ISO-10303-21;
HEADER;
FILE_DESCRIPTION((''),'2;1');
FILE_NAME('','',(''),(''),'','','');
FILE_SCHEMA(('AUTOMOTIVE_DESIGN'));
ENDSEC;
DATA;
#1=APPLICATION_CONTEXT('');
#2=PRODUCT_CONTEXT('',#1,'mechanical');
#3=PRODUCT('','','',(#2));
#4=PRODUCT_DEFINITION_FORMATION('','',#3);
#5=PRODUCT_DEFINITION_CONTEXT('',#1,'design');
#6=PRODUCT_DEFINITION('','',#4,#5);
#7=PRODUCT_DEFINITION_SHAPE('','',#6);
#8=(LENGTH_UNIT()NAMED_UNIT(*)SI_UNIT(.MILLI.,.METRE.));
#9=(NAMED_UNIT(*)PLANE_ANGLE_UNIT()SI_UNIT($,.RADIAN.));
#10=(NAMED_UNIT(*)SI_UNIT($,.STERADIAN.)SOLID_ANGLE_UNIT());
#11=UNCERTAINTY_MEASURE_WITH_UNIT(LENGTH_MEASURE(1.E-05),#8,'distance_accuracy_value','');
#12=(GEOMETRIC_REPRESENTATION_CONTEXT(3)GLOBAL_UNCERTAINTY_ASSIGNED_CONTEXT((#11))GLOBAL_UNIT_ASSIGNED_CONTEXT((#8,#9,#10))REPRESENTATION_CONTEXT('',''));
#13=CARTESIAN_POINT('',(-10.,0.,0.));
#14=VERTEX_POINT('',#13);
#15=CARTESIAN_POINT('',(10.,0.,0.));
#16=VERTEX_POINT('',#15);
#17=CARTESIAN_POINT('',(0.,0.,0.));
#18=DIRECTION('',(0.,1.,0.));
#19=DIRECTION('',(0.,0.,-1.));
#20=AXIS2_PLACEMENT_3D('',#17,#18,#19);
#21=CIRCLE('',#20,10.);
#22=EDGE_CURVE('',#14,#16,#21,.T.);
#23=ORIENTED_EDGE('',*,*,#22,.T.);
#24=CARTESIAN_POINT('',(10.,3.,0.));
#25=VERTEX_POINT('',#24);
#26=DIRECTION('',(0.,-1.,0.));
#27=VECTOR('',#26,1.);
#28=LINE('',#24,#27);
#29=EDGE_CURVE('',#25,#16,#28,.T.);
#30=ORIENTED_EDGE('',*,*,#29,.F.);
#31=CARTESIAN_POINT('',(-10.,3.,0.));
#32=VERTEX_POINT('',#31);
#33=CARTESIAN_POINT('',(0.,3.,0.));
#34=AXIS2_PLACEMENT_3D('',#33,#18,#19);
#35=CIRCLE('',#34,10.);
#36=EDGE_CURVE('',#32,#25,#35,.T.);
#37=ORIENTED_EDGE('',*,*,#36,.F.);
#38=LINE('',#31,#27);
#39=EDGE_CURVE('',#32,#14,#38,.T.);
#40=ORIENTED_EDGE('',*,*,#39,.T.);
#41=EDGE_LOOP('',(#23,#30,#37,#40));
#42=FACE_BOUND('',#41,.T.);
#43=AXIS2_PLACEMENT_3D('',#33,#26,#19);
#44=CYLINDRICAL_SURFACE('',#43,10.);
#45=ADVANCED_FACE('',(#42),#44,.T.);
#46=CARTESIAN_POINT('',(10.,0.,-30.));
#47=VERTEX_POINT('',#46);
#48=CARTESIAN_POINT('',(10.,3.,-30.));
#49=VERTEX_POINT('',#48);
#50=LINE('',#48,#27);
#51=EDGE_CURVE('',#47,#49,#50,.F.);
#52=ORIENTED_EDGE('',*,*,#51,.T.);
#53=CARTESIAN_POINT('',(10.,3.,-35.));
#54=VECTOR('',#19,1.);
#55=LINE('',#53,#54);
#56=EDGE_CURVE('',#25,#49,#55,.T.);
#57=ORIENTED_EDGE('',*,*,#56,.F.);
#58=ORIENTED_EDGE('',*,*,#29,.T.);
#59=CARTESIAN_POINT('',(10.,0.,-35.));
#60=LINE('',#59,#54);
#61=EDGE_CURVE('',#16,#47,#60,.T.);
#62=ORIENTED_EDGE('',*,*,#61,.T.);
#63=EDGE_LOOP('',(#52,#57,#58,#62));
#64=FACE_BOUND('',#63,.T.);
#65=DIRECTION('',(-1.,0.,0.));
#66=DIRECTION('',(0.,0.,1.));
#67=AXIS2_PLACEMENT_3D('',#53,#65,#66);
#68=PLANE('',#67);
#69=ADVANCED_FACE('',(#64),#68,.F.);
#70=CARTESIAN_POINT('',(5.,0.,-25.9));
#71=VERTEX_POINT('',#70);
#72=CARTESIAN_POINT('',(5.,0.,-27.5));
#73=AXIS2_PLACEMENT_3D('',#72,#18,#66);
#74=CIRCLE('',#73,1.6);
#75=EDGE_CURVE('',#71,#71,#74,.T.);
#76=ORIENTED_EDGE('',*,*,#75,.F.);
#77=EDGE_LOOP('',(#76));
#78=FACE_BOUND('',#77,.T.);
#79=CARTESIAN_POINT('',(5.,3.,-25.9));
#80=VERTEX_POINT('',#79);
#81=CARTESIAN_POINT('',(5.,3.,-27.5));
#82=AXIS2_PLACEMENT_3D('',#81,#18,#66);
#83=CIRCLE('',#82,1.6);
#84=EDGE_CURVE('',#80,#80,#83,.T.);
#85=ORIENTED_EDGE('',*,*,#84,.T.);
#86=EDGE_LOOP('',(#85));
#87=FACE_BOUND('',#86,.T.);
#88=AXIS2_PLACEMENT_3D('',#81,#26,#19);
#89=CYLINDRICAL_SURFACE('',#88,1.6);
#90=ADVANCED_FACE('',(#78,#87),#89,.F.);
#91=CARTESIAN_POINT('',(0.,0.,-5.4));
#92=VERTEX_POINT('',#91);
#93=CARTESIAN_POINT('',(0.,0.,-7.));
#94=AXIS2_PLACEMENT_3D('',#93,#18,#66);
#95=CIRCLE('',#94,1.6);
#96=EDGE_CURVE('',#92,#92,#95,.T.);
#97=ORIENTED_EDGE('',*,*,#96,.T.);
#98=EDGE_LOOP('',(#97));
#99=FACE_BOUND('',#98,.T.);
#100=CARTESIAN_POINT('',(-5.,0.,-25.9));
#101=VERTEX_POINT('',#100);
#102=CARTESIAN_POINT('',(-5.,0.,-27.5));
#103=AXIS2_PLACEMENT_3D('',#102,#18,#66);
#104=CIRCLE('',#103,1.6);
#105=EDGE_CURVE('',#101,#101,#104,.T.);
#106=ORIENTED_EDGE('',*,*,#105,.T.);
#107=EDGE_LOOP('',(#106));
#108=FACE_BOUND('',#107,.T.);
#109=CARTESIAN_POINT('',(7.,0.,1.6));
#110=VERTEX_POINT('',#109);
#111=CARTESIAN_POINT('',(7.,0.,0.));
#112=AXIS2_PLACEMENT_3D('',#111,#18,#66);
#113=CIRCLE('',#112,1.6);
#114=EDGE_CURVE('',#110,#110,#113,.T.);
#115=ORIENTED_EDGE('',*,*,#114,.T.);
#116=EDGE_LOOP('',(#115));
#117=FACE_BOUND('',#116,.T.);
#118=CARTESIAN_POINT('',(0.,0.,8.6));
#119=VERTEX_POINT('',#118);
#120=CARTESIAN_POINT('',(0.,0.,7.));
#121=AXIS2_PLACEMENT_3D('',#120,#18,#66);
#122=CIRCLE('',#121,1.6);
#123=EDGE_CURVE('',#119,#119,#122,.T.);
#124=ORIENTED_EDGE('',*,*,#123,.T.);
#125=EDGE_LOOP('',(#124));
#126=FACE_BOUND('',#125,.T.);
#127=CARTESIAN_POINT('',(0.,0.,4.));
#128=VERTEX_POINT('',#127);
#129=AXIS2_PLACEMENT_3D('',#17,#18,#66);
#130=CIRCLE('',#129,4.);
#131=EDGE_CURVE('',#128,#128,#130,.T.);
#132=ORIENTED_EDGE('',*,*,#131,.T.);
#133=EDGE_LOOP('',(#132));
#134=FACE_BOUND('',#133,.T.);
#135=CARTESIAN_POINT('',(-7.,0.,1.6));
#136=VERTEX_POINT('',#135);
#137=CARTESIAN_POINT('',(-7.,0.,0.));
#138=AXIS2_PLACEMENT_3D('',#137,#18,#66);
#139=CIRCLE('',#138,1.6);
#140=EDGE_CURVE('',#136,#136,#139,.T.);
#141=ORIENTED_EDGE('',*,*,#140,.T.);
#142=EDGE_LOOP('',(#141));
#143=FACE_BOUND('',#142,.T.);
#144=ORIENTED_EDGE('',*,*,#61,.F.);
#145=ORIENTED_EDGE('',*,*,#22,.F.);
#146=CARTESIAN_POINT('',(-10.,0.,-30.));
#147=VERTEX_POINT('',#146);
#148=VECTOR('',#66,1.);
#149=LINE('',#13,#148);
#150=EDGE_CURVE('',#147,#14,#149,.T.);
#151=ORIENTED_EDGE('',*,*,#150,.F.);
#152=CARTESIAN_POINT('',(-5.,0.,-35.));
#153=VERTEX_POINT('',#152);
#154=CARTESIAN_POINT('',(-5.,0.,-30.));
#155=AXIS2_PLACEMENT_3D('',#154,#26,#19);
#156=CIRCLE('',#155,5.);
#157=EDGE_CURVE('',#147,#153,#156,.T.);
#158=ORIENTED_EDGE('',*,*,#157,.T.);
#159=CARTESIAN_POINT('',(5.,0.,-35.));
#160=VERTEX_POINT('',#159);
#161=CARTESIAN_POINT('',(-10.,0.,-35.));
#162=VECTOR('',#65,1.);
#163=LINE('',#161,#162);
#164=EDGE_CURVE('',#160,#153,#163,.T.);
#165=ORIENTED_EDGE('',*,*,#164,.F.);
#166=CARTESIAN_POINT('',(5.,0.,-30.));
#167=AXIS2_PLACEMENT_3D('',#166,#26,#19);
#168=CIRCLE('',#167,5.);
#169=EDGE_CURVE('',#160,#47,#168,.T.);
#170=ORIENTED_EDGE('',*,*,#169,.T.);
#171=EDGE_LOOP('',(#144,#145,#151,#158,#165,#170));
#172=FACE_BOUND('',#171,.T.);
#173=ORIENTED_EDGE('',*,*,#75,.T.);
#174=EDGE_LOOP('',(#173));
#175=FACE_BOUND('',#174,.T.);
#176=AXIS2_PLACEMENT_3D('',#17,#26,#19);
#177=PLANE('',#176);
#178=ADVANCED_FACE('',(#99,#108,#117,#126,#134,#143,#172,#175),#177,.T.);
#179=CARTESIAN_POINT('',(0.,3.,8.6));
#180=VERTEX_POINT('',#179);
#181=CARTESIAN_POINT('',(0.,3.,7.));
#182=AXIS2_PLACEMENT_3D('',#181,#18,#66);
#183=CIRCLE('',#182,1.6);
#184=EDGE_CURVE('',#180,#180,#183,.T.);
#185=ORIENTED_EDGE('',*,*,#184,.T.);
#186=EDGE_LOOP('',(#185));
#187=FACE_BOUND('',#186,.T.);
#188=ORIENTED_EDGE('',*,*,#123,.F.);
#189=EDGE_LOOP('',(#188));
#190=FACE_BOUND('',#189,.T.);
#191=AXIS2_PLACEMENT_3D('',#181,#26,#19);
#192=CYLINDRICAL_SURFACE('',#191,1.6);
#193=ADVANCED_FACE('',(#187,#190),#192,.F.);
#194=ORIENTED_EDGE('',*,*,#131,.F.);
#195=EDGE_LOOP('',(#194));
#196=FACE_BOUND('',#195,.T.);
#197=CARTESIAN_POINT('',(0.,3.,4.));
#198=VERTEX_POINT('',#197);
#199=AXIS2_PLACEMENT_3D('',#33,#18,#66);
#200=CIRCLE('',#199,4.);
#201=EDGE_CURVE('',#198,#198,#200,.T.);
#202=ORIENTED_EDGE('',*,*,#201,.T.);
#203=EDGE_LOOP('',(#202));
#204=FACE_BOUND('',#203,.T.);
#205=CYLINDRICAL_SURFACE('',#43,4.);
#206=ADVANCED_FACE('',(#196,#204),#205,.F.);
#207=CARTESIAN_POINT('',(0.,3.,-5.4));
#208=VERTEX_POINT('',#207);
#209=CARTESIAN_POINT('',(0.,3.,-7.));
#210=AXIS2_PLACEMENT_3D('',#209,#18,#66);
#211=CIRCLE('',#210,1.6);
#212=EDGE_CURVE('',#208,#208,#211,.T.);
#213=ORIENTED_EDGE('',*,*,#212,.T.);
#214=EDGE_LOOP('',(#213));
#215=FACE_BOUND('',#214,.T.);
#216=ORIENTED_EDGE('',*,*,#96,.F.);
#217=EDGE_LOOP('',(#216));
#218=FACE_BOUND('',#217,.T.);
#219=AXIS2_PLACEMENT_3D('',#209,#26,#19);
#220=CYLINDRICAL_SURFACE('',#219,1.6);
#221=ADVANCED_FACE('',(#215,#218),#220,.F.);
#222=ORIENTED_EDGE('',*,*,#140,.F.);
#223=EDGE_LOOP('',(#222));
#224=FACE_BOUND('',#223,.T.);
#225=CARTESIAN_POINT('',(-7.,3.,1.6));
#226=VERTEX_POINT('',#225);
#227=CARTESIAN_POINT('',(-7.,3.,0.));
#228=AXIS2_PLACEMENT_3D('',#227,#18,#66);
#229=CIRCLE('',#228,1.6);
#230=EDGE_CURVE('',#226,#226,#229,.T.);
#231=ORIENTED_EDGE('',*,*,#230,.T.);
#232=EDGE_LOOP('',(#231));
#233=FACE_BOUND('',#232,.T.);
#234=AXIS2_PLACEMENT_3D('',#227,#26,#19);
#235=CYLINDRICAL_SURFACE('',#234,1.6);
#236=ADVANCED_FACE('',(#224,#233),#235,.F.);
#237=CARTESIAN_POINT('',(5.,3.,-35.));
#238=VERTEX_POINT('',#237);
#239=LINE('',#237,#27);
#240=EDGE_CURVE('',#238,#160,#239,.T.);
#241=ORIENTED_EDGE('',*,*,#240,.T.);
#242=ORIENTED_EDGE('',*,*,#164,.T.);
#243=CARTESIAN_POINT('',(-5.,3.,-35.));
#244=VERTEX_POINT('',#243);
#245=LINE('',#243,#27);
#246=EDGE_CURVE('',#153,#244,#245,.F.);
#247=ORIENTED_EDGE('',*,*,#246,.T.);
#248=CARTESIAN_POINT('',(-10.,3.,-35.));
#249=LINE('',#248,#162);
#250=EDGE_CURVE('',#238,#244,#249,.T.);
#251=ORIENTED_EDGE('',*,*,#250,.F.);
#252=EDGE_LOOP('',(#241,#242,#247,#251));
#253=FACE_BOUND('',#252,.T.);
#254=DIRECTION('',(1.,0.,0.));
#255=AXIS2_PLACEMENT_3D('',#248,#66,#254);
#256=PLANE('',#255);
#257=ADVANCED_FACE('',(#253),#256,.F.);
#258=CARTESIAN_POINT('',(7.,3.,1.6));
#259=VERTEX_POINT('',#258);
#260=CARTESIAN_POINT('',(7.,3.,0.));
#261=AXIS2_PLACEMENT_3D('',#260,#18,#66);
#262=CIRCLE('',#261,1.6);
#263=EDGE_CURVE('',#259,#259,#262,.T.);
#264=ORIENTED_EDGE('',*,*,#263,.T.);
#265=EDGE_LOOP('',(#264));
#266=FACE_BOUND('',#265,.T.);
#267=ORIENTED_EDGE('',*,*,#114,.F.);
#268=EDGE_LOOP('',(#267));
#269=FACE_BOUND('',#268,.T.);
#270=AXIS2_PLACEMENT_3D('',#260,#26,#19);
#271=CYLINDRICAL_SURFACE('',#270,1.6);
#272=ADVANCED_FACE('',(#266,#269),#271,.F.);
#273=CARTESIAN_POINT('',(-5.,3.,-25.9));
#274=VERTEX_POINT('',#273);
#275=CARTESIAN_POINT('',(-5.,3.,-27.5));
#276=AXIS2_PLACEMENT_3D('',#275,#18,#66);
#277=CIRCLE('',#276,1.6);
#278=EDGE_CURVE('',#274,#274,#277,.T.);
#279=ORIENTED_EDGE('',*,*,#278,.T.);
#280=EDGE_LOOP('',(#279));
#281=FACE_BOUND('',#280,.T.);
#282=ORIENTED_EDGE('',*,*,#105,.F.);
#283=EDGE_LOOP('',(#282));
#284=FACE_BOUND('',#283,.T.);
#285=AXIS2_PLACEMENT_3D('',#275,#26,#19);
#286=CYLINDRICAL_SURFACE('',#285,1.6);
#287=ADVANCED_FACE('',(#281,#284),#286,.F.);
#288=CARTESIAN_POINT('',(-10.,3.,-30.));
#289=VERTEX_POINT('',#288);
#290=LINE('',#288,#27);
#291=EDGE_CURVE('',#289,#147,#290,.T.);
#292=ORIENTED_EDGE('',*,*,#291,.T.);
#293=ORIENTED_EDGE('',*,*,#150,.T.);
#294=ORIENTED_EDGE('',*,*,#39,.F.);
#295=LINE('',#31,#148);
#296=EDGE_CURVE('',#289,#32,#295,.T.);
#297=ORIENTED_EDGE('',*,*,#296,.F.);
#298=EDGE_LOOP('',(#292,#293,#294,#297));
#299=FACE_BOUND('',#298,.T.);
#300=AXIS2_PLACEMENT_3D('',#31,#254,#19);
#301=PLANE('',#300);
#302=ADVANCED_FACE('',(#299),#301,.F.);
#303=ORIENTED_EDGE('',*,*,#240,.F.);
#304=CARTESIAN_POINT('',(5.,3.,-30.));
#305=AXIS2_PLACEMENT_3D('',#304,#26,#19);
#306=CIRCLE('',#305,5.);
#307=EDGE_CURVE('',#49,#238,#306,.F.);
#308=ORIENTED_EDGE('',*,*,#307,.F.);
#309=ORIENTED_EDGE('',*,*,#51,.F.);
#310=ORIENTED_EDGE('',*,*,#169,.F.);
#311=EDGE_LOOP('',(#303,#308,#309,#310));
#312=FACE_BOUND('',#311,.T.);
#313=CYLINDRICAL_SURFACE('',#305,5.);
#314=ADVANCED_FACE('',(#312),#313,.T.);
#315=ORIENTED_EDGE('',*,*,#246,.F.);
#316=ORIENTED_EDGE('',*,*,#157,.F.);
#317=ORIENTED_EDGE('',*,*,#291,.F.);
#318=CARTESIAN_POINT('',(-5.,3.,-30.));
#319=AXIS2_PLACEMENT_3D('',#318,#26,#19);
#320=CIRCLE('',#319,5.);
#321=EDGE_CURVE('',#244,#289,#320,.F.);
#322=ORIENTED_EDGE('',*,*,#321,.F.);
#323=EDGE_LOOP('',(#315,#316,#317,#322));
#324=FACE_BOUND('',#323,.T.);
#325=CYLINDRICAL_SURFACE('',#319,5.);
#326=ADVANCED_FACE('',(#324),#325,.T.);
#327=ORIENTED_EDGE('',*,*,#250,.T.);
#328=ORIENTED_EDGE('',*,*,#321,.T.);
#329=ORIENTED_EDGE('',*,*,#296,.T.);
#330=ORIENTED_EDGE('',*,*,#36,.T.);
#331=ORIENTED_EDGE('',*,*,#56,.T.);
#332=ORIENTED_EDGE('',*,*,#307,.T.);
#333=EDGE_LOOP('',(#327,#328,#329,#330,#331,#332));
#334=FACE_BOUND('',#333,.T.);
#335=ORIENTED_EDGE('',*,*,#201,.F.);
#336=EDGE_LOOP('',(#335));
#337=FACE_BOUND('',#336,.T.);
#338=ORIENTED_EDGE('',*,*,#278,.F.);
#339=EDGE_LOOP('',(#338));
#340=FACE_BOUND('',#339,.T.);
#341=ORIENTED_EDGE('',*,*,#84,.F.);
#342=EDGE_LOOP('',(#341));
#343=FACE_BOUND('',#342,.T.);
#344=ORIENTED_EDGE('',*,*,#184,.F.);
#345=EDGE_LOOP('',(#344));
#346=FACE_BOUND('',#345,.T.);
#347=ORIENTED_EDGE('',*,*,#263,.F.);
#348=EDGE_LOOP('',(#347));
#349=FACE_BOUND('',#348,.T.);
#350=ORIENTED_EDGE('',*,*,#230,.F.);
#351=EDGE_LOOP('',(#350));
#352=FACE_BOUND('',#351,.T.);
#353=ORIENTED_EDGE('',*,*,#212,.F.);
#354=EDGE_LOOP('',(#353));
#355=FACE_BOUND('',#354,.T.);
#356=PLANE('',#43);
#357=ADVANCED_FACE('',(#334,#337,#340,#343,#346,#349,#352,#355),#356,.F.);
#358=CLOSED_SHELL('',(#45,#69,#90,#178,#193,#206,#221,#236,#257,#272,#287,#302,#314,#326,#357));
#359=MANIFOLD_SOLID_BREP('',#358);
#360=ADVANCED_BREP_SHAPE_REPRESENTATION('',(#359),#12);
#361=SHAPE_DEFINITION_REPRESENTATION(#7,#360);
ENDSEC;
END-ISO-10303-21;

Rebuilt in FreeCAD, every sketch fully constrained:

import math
import FreeCAD as App
import Part
import Sketcher
Q = App.Units.Quantity


def edges_at(feature, points):
    """Names of the edges that pass closest to the given points."""
    edges = feature.Shape.Edges
    near = lambda p: min(range(len(edges)), key=lambda i: edges[i].distToShape(Part.Vertex(*p))[0])
    return sorted({f"Edge{near(p) + 1}" for p in points})

doc = App.newDocument("Part")
body = doc.addObject("PartDesign::Body", "Body")

sketch1 = doc.addObject("Sketcher::SketchObject", "Sketch")
body.addObject(sketch1)
sketch1.AttachmentSupport = (doc.XZ_Plane, [""])
sketch1.MapMode = "FlatFace"
sketch1.addGeometry(Part.LineSegment(App.Vector(-10, -35, 0), App.Vector(-10, 0, 0)), False)
sketch1.addGeometry(Part.ArcOfCircle(Part.Circle(App.Vector(0, 0, 0), App.Vector(0, 0, 1), 10), math.radians(0), math.radians(180)), False)
sketch1.addGeometry(Part.LineSegment(App.Vector(10, 0, 0), App.Vector(10, -35, 0)), False)
sketch1.addGeometry(Part.LineSegment(App.Vector(10, -35, 0), App.Vector(-10, -35, 0)), False)
sketch1.addGeometry(Part.Circle(App.Vector(7, 0, 0), App.Vector(0, 0, 1), 1.6), False)
sketch1.addGeometry(Part.Circle(App.Vector(0, 7, 0), App.Vector(0, 0, 1), 1.6), False)
sketch1.addGeometry(Part.Circle(App.Vector(0, 0, 0), App.Vector(0, 0, 1), 4), False)
sketch1.addGeometry(Part.Circle(App.Vector(-7, 0, 0), App.Vector(0, 0, 1), 1.6), False)
sketch1.addGeometry(Part.Circle(App.Vector(0, -7, 0), App.Vector(0, 0, 1), 1.6), False)
sketch1.addGeometry(Part.Circle(App.Vector(5, -27.5, 0), App.Vector(0, 0, 1), 1.6), False)
sketch1.addGeometry(Part.Circle(App.Vector(-5, -27.5, 0), App.Vector(0, 0, 1), 1.6), False)
sketch1.addConstraint(Sketcher.Constraint("Tangent", 0, 2, 1, 2))
sketch1.addConstraint(Sketcher.Constraint("Tangent", 1, 1, 2, 1))
sketch1.addConstraint(Sketcher.Constraint("Coincident", 2, 2, 3, 1))
sketch1.addConstraint(Sketcher.Constraint("Coincident", 3, 2, 0, 1))
sketch1.addConstraint(Sketcher.Constraint("Vertical", 0))
sketch1.addConstraint(Sketcher.Constraint("Vertical", 2))
sketch1.addConstraint(Sketcher.Constraint("Horizontal", 3))
sketch1.addConstraint(Sketcher.Constraint("Coincident", 1, 3, -1, 1))
sketch1.addConstraint(Sketcher.Constraint("Coincident", 6, 3, -1, 1))
sketch1.addConstraint(Sketcher.Constraint("Equal", 4, 5))
sketch1.addConstraint(Sketcher.Constraint("Equal", 5, 7))
sketch1.addConstraint(Sketcher.Constraint("Equal", 7, 8))
sketch1.addConstraint(Sketcher.Constraint("Equal", 8, 9))
sketch1.addConstraint(Sketcher.Constraint("Equal", 9, 10))
sketch1.addConstraint(Sketcher.Constraint("Symmetric", 4, 3, 7, 3, -1, 1))
sketch1.addConstraint(Sketcher.Constraint("Symmetric", 5, 3, 8, 3, -1, 1))
sketch1.addConstraint(Sketcher.Constraint("Symmetric", 9, 3, 10, 3, -2))
sketch1.addConstraint(Sketcher.Constraint("PointOnObject", 4, 3, -1))
sketch1.addConstraint(Sketcher.Constraint("PointOnObject", 5, 3, -2))
sketch1.addConstraint(Sketcher.Constraint("Diameter", 6, Q("8 mm")))
sketch1.addConstraint(Sketcher.Constraint("Radius", 1, Q("10 mm")))
sketch1.addConstraint(Sketcher.Constraint("Diameter", 4, Q("3.2 mm")))
sketch1.addConstraint(Sketcher.Constraint("DistanceY", 0, 1, 0, 2, Q("35 mm")))
sketch1.addConstraint(Sketcher.Constraint("DistanceX", -1, 1, 4, 3, Q("7 mm")))
sketch1.addConstraint(Sketcher.Constraint("DistanceY", -1, 1, 5, 3, Q("7 mm")))
sketch1.addConstraint(Sketcher.Constraint("DistanceX", -1, 1, 9, 3, Q("5 mm")))
sketch1.addConstraint(Sketcher.Constraint("DistanceY", 9, 3, -1, 1, Q("27.5 mm")))
pad1 = doc.addObject("PartDesign::Pad", "Pad")
body.addObject(pad1)
pad1.Profile = sketch1
pad1.Length = 3
pad1.Reversed = True
doc.recompute()

fillet = doc.addObject("PartDesign::Fillet", "Fillet")
body.addObject(fillet)
fillet.Base = (pad1, edges_at(pad1, [(-10, 1.5, -35), (10, 1.5, -35)]))
fillet.Radius = 5

doc.recompute()
